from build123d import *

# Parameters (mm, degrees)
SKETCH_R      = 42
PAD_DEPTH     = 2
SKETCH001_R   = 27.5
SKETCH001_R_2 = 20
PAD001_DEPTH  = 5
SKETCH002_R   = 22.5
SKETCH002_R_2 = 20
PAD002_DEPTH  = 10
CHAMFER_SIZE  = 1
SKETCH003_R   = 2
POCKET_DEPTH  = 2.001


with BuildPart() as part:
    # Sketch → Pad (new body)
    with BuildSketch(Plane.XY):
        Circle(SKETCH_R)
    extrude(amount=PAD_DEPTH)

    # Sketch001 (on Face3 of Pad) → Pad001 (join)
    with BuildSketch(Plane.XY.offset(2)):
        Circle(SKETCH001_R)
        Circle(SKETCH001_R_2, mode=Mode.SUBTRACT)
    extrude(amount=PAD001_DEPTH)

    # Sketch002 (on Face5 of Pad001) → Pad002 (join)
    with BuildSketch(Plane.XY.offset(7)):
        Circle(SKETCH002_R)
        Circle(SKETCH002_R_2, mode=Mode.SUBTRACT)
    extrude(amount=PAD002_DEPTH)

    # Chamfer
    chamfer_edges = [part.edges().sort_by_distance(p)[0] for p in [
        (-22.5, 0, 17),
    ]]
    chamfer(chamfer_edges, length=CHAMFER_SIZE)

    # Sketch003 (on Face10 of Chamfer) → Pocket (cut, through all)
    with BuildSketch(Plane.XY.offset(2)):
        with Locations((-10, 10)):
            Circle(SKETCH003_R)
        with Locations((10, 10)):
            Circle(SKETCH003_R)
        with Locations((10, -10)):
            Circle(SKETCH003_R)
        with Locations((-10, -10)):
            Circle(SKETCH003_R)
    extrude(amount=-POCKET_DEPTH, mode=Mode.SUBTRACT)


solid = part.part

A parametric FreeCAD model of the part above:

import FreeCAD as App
import Part
import Sketcher
Q = App.Units.Quantity


def edges_at(feature, points):
    """Names of the edges that pass closest to the given points."""
    edges = feature.Shape.Edges
    near = lambda p: min(range(len(edges)), key=lambda i: edges[i].distToShape(Part.Vertex(*p))[0])
    return sorted({f"Edge{near(p) + 1}" for p in points})

doc = App.newDocument("Part")
body = doc.addObject("PartDesign::Body", "Body")

sketch1 = body.newObject("Sketcher::SketchObject", "Sketch")
sketch1.AttachmentSupport = (doc.getObject("XY_Plane"), [""])
sketch1.MapMode = "FlatFace"
sketch1.addGeometry(Part.Circle(App.Vector(0, 0, 0), App.Vector(0, 0, 1), 42), False)
sketch1.addConstraint(Sketcher.Constraint("Coincident", 0, 3, -1, 1))
sketch1.addConstraint(Sketcher.Constraint("Diameter", 0, Q("84 mm")))
pad1 = body.newObject("PartDesign::Pad", "Pad")
pad1.Profile = sketch1
pad1.Length = 2

sketch2 = body.newObject("Sketcher::SketchObject", "Sketch001")
sketch2.AttachmentSupport = (doc.getObject("XY_Plane"), [""])
sketch2.MapMode = "FlatFace"
sketch2.AttachmentOffset = App.Placement(App.Vector(0, 0, 2), App.Rotation())
sketch2.addGeometry(Part.Circle(App.Vector(0, 0, 0), App.Vector(0, 0, 1), 27.5), False)
sketch2.addGeometry(Part.Circle(App.Vector(0, 0, 0), App.Vector(0, 0, 1), 20), False)
sketch2.addConstraint(Sketcher.Constraint("Coincident", 0, 3, -1, 1))
sketch2.addConstraint(Sketcher.Constraint("Coincident", 1, 3, -1, 1))
sketch2.addConstraint(Sketcher.Constraint("Diameter", 0, Q("55 mm")))
sketch2.addConstraint(Sketcher.Constraint("Diameter", 1, Q("40 mm")))
pad2 = body.newObject("PartDesign::Pad", "Pad001")
pad2.Profile = sketch2
pad2.Length = 5

sketch3 = body.newObject("Sketcher::SketchObject", "Sketch002")
sketch3.AttachmentSupport = (doc.getObject("XY_Plane"), [""])
sketch3.MapMode = "FlatFace"
sketch3.AttachmentOffset = App.Placement(App.Vector(0, 0, 7), App.Rotation())
sketch3.addGeometry(Part.Circle(App.Vector(0, 0, 0), App.Vector(0, 0, 1), 22.5), False)
sketch3.addGeometry(Part.Circle(App.Vector(0, 0, 0), App.Vector(0, 0, 1), 20), False)
sketch3.addConstraint(Sketcher.Constraint("Coincident", 0, 3, -1, 1))
sketch3.addConstraint(Sketcher.Constraint("Coincident", 1, 3, -1, 1))
sketch3.addConstraint(Sketcher.Constraint("Diameter", 0, Q("45 mm")))
sketch3.addConstraint(Sketcher.Constraint("Diameter", 1, Q("40 mm")))
pad3 = body.newObject("PartDesign::Pad", "Pad002")
pad3.Profile = sketch3
pad3.Length = 10
doc.recompute()

chamfer = body.newObject("PartDesign::Chamfer", "Chamfer")
chamfer.Base = (pad3, edges_at(pad3, [(-22.5, 0, 17)]))
chamfer.Size = 1

sketch4 = body.newObject("Sketcher::SketchObject", "Sketch003")
sketch4.AttachmentSupport = (doc.getObject("XY_Plane"), [""])
sketch4.MapMode = "FlatFace"
sketch4.AttachmentOffset = App.Placement(App.Vector(0, 0, 2), App.Rotation())
sketch4.addGeometry(Part.Circle(App.Vector(-10, 10, 0), App.Vector(0, 0, 1), 2), False)
sketch4.addGeometry(Part.Circle(App.Vector(10, 10, 0), App.Vector(0, 0, 1), 2), False)
sketch4.addGeometry(Part.Circle(App.Vector(10, -10, 0), App.Vector(0, 0, 1), 2), False)
sketch4.addGeometry(Part.Circle(App.Vector(-10, -10, 0), App.Vector(0, 0, 1), 2), False)
sketch4.addConstraint(Sketcher.Constraint("Equal", 0, 1))
sketch4.addConstraint(Sketcher.Constraint("Equal", 1, 2))
sketch4.addConstraint(Sketcher.Constraint("Equal", 2, 3))
sketch4.addConstraint(Sketcher.Constraint("Symmetric", 0, 3, 2, 3, -1, 1))
sketch4.addConstraint(Sketcher.Constraint("Symmetric", 1, 3, 3, 3, -1, 1))
sketch4.addConstraint(Sketcher.Constraint("Symmetric", 0, 3, 1, 3, -2))
sketch4.addConstraint(Sketcher.Constraint("Diameter", 0, Q("4 mm")))
sketch4.addConstraint(Sketcher.Constraint("DistanceX", 0, 3, -1, 1, Q("10 mm")))
sketch4.addConstraint(Sketcher.Constraint("DistanceY", -1, 1, 0, 3, Q("10 mm")))
pocket1 = body.newObject("PartDesign::Pocket", "Pocket")
pocket1.Profile = sketch4
pocket1.Type = "ThroughAll"

doc.recompute()
